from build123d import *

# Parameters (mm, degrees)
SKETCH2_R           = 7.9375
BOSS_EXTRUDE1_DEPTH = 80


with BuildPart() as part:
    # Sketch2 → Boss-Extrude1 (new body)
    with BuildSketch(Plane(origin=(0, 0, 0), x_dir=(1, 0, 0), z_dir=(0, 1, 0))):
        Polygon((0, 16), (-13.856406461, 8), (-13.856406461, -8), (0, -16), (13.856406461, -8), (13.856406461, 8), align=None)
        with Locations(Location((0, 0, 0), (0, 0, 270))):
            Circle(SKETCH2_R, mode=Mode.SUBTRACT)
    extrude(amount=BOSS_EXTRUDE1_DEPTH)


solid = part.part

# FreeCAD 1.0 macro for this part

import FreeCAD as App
import Part
import Sketcher
from FreeCAD import Vector
Q = App.Units.Quantity


def add_polygon(sketch, points):
    """Adds a closed chain of lines whose ends are joined by coincident constraints."""
    first, n = sketch.GeometryCount, len(points)
    for a, b in zip(points, points[1:] + points[:1]):
        sketch.addGeometry(Part.LineSegment(App.Vector(*a, 0), App.Vector(*b, 0)), False)
    for i in range(n):
        sketch.addConstraint(Sketcher.Constraint("Coincident", first + i, 2, first + (i + 1) % n, 1))

doc = App.newDocument("Part")
body = doc.addObject("PartDesign::Body", "Body")

sketch1 = body.newObject("Sketcher::SketchObject", "Sketch")
sketch1.AttachmentSupport = (doc.getObject("XZ_Plane"), [""])
sketch1.MapMode = "FlatFace"
add_polygon(sketch1, [(0, -16), (-14, -8), (-14, 8), (0, 16), (14, 8), (14, -8)])
sketch1.addGeometry(Part.Circle(Vector(0, 0, 0), Vector(0, 0, 1), 8), False)
sketch1.addConstraint([
    Sketcher.Constraint("Vertical", 1),
    Sketcher.Constraint("Vertical", 4),
    Sketcher.Constraint("Coincident", 6, 3, -1, 1),
    Sketcher.Constraint("Symmetric", 0, 2, 3, 2, -1, 1),
    Sketcher.Constraint("Symmetric", 2, 2, 5, 2, -1, 1),
    Sketcher.Constraint("PointOnObject", 2, 2, -2),
    Sketcher.Constraint("Parallel", 2, 5),
    Sketcher.Constraint("Horizontal", 1, 2, 3, 2),
    Sketcher.Constraint("DistanceY", 1, 1, 1, 2, Q("16 mm")),
    Sketcher.Constraint("Angle", 0, Q("150 deg")),
    Sketcher.Constraint("Distance", 0, Q("16 mm")),
    Sketcher.Constraint("Diameter", 6, Q("15.875 mm")),
])
pad1 = body.newObject("PartDesign::Pad", "Pad")
pad1.Profile = sketch1
pad1.Length = 80
pad1.Reversed = True

doc.recompute()
